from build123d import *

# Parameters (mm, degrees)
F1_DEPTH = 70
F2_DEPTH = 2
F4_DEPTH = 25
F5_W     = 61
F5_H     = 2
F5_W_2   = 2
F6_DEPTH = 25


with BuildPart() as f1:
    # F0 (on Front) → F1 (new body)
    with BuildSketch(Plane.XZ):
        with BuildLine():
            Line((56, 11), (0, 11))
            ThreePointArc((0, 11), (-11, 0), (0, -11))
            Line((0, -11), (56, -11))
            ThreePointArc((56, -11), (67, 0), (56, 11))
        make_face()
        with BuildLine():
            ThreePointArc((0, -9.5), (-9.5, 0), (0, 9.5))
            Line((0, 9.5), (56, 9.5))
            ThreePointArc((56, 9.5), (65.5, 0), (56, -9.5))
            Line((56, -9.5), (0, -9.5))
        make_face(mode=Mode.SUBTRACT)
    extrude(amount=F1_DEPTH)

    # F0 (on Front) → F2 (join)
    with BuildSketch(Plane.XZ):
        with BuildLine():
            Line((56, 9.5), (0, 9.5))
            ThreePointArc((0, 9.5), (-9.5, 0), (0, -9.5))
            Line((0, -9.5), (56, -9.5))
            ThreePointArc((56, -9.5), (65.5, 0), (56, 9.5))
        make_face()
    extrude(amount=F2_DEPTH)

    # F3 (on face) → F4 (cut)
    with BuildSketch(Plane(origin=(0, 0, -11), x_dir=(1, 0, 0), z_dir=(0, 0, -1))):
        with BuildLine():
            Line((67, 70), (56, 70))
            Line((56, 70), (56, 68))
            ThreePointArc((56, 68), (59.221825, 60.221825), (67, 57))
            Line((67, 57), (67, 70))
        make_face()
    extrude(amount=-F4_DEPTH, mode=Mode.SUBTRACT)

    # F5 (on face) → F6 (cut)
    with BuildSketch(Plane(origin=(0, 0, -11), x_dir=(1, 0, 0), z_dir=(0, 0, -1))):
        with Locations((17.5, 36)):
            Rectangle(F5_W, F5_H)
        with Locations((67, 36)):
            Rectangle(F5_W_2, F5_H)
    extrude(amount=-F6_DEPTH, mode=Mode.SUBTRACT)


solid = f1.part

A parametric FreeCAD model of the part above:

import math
import FreeCAD as App
import Part
import Sketcher
Q = App.Units.Quantity


def add_polygon(sketch, points):
    """Adds a closed chain of lines whose ends are joined by coincident constraints."""
    first, n = sketch.GeometryCount, len(points)
    for a, b in zip(points, points[1:] + points[:1]):
        sketch.addGeometry(Part.LineSegment(App.Vector(*a, 0), App.Vector(*b, 0)), False)
    for i in range(n):
        sketch.addConstraint(Sketcher.Constraint("Coincident", first + i, 2, first + (i + 1) % n, 1))

doc = App.newDocument("Part")
params = doc.addObject("Spreadsheet::Sheet", "Params")
for row, (alias, value) in enumerate([
    ("sketch1_radius", "11 mm"),
    ("sketch1_radius2", "9.5 mm"),
    ("sketch1_width", "56 mm"),
    ("pad1_length", "70 mm"),
    ("sketch2_radius", "9.5 mm"),
    ("sketch2_width", "56 mm"),
    ("pad2_length", "2 mm"),
    ("sketch3_radius", "10.999999 mm"),
    ("sketch3_width", "11 mm"),
    ("sketch3_height", "2 mm"),
    ("pocket1_length", "25 mm"),
    ("sketch4_width", "61 mm"),
    ("sketch4_width2", "2 mm"),
    ("pocket2_length", "25 mm"),
], start=1):
    params.set(f"A{row}", alias)
    params.set(f"B{row}", "=" + value)
    params.setAlias(f"B{row}", alias)

body = doc.addObject("PartDesign::Body", "Body")

# Sketch on XZ plane
sketch1 = body.newObject("Sketcher::SketchObject", "Sketch")
sketch1.AttachmentSupport = (doc.getObject("XZ_Plane"), [""])
sketch1.MapMode = "FlatFace"
sketch1.addGeometry([
    Part.LineSegment(App.Vector(56, 11, 0), App.Vector(0, 11, 0)),  # 0
    Part.ArcOfCircle(Part.Circle(App.Vector(0, 0, 0), App.Vector(0, 0, 1), 11), math.radians(90), math.radians(270)),  # 1
    Part.LineSegment(App.Vector(0, -11, 0), App.Vector(56, -11, 0)),  # 2
    Part.ArcOfCircle(Part.Circle(App.Vector(56, 0, 0), App.Vector(0, 0, 1), 11), math.radians(-90), math.radians(90)),  # 3
    Part.LineSegment(App.Vector(56, -10, 0), App.Vector(0, -10, 0)),  # 4
    Part.ArcOfCircle(Part.Circle(App.Vector(0, 0, 0), App.Vector(0, 0, 1), 10), math.radians(90), math.radians(270)),  # 5
    Part.LineSegment(App.Vector(0, 10, 0), App.Vector(56, 10, 0)),  # 6
    Part.ArcOfCircle(Part.Circle(App.Vector(56, 0, 0), App.Vector(0, 0, 1), 10), math.radians(-90), math.radians(90)),  # 7
], False)
sketch1.addConstraint([
    Sketcher.Constraint("Tangent", 0, 2, 1, 1),
    Sketcher.Constraint("Tangent", 1, 2, 2, 1),
    Sketcher.Constraint("Tangent", 2, 2, 3, 1),
    Sketcher.Constraint("Tangent", 3, 2, 0, 1),
    Sketcher.Constraint("Tangent", 4, 2, 5, 2),
    Sketcher.Constraint("Tangent", 5, 1, 6, 1),
    Sketcher.Constraint("Tangent", 6, 2, 7, 2),
    Sketcher.Constraint("Tangent", 7, 1, 4, 1),
    Sketcher.Constraint("Horizontal", 0),
    Sketcher.Constraint("Horizontal", 2),
    Sketcher.Constraint("Horizontal", 4),
    Sketcher.Constraint("Horizontal", 6),
    Sketcher.Constraint("Coincident", 1, 3, -1, 1),
    Sketcher.Constraint("Coincident", 5, 3, -1, 1),
    Sketcher.Constraint("Vertical", 7, 3, 2, 2),
    Sketcher.Constraint("Radius", 1, Q("11 mm")),
    Sketcher.Constraint("Radius", 5, Q("9.5 mm")),
    Sketcher.Constraint("DistanceX", 0, 2, 0, 1, Q("56 mm")),
])
sketch1.setExpression("Constraints[15]", "Params.sketch1_radius")
sketch1.setExpression("Constraints[16]", "Params.sketch1_radius2")
sketch1.setExpression("Constraints[17]", "Params.sketch1_width")
pad1 = body.newObject("PartDesign::Pad", "Pad")
pad1.Profile = sketch1
pad1.setExpression("Length", "Params.pad1_length")

# Sketch on XZ plane
sketch2 = body.newObject("Sketcher::SketchObject", "Sketch001")
sketch2.AttachmentSupport = (doc.getObject("XZ_Plane"), [""])
sketch2.MapMode = "FlatFace"
sketch2.addGeometry([
    Part.LineSegment(App.Vector(56, 10, 0), App.Vector(0, 10, 0)),
    Part.ArcOfCircle(Part.Circle(App.Vector(0, 0, 0), App.Vector(0, 0, 1), 10), math.radians(90), math.radians(270)),
    Part.LineSegment(App.Vector(0, -10, 0), App.Vector(56, -10, 0)),
    Part.ArcOfCircle(Part.Circle(App.Vector(56, 0, 0), App.Vector(0, 0, 1), 10), math.radians(-90), math.radians(90)),
], False)
sketch2.addConstraint([
    Sketcher.Constraint("Tangent", 0, 2, 1, 1),
    Sketcher.Constraint("Tangent", 1, 2, 2, 1),
    Sketcher.Constraint("Tangent", 2, 2, 3, 1),
    Sketcher.Constraint("Tangent", 3, 2, 0, 1),
    Sketcher.Constraint("Horizontal", 0),
    Sketcher.Constraint("Horizontal", 2),
    Sketcher.Constraint("Coincident", 1, 3, -1, 1),
    Sketcher.Constraint("Radius", 1, Q("9.5 mm")),
    Sketcher.Constraint("DistanceX", 0, 2, 0, 1, Q("56 mm")),
])
sketch2.setExpression("Constraints[7]", "Params.sketch2_radius")
sketch2.setExpression("Constraints[8]", "Params.sketch2_width")
pad2 = body.newObject("PartDesign::Pad", "Pad001")
pad2.Profile = sketch2
pad2.setExpression("Length", "Params.pad2_length")

# Sketch on XY plane
sketch3 = body.newObject("Sketcher::SketchObject", "Sketch002")
sketch3.AttachmentSupport = (doc.getObject("XY_Plane"), [""])
sketch3.MapMode = "FlatFace"
sketch3.AttachmentOffset = App.Placement(App.Vector(0, 0, -11), App.Rotation())
sketch3.addGeometry([
    Part.LineSegment(App.Vector(67, -70, 0), App.Vector(56, -70, 0)),
    Part.LineSegment(App.Vector(56, -70, 0), App.Vector(56, -68, 0)),
    Part.ArcOfCircle(Part.Circle(App.Vector(67, -68, 0), App.Vector(0, 0, 1), 11), math.radians(90), math.radians(180)),
    Part.LineSegment(App.Vector(67, -57, 0), App.Vector(67, -70, 0)),
], False)
sketch3.addConstraint([
    Sketcher.Constraint("Coincident", 0, 2, 1, 1),
    Sketcher.Constraint("Tangent", 1, 2, 2, 2),
    Sketcher.Constraint("Coincident", 2, 1, 3, 1),
    Sketcher.Constraint("Coincident", 3, 2, 0, 1),
    Sketcher.Constraint("Horizontal", 0),
    Sketcher.Constraint("Vertical", 1),
    Sketcher.Constraint("Vertical", 3),
    Sketcher.Constraint("Radius", 2, Q("10.999999 mm")),
    Sketcher.Constraint("DistanceX", 0, 2, 0, 1, Q("11 mm")),
    Sketcher.Constraint("DistanceY", 1, 1, 1, 2, Q("2 mm")),
    Sketcher.Constraint("DistanceX", -1, 1, 2, 3, Q("66.999999 mm")),
    Sketcher.Constraint("DistanceY", 2, 3, -1, 1, Q("67.999999 mm")),
])
sketch3.setExpression("Constraints[7]", "Params.sketch3_radius")
sketch3.setExpression("Constraints[8]", "Params.sketch3_width")
sketch3.setExpression("Constraints[9]", "Params.sketch3_height")
pocket1 = body.newObject("PartDesign::Pocket", "Pocket")
pocket1.Profile = sketch3
pocket1.setExpression("Length", "Params.pocket1_length")
pocket1.Reversed = True

# Sketch on XY plane
sketch4 = body.newObject("Sketcher::SketchObject", "Sketch003")
sketch4.AttachmentSupport = (doc.getObject("XY_Plane"), [""])
sketch4.MapMode = "FlatFace"
sketch4.AttachmentOffset = App.Placement(App.Vector(0, 0, -11), App.Rotation())
add_polygon(sketch4, [(-13, -37), (-13, -35), (48, -35), (48, -37)])  # lines 0-3
add_polygon(sketch4, [(66, -37), (66, -35), (68, -35), (68, -37)])  # lines 4-7
sketch4.addConstraint([
    Sketcher.Constraint("Vertical", 0),
    Sketcher.Constraint("Horizontal", 1),
    Sketcher.Constraint("Vertical", 2),
    Sketcher.Constraint("Horizontal", 3),
    Sketcher.Constraint("Vertical", 4),
    Sketcher.Constraint("Horizontal", 5),
    Sketcher.Constraint("Vertical", 6),
    Sketcher.Constraint("Horizontal", 7),
    Sketcher.Constraint("Horizontal", 1, 2, 4, 2),
    Sketcher.Constraint("Horizontal", 3, 2, 6, 2),
    Sketcher.Constraint("Equal", 7, 0),
    Sketcher.Constraint("DistanceX", 1, 1, 1, 2, Q("61 mm")),
    Sketcher.Constraint("DistanceX", 5, 1, 5, 2, Q("2 mm")),
    Sketcher.Constraint("DistanceX", 0, 2, -1, 1, Q("13 mm")),
    Sketcher.Constraint("DistanceY", 0, 2, -1, 1, Q("35 mm")),
    Sketcher.Constraint("DistanceX", -1, 1, 4, 2, Q("66 mm")),
])
sketch4.setExpression("Constraints[19]", "Params.sketch4_width")
sketch4.setExpression("Constraints[20]", "Params.sketch4_width2")
pocket2 = body.newObject("PartDesign::Pocket", "Pocket001")
pocket2.Profile = sketch4
pocket2.setExpression("Length", "Params.pocket2_length")
pocket2.Reversed = True

doc.recompute()
